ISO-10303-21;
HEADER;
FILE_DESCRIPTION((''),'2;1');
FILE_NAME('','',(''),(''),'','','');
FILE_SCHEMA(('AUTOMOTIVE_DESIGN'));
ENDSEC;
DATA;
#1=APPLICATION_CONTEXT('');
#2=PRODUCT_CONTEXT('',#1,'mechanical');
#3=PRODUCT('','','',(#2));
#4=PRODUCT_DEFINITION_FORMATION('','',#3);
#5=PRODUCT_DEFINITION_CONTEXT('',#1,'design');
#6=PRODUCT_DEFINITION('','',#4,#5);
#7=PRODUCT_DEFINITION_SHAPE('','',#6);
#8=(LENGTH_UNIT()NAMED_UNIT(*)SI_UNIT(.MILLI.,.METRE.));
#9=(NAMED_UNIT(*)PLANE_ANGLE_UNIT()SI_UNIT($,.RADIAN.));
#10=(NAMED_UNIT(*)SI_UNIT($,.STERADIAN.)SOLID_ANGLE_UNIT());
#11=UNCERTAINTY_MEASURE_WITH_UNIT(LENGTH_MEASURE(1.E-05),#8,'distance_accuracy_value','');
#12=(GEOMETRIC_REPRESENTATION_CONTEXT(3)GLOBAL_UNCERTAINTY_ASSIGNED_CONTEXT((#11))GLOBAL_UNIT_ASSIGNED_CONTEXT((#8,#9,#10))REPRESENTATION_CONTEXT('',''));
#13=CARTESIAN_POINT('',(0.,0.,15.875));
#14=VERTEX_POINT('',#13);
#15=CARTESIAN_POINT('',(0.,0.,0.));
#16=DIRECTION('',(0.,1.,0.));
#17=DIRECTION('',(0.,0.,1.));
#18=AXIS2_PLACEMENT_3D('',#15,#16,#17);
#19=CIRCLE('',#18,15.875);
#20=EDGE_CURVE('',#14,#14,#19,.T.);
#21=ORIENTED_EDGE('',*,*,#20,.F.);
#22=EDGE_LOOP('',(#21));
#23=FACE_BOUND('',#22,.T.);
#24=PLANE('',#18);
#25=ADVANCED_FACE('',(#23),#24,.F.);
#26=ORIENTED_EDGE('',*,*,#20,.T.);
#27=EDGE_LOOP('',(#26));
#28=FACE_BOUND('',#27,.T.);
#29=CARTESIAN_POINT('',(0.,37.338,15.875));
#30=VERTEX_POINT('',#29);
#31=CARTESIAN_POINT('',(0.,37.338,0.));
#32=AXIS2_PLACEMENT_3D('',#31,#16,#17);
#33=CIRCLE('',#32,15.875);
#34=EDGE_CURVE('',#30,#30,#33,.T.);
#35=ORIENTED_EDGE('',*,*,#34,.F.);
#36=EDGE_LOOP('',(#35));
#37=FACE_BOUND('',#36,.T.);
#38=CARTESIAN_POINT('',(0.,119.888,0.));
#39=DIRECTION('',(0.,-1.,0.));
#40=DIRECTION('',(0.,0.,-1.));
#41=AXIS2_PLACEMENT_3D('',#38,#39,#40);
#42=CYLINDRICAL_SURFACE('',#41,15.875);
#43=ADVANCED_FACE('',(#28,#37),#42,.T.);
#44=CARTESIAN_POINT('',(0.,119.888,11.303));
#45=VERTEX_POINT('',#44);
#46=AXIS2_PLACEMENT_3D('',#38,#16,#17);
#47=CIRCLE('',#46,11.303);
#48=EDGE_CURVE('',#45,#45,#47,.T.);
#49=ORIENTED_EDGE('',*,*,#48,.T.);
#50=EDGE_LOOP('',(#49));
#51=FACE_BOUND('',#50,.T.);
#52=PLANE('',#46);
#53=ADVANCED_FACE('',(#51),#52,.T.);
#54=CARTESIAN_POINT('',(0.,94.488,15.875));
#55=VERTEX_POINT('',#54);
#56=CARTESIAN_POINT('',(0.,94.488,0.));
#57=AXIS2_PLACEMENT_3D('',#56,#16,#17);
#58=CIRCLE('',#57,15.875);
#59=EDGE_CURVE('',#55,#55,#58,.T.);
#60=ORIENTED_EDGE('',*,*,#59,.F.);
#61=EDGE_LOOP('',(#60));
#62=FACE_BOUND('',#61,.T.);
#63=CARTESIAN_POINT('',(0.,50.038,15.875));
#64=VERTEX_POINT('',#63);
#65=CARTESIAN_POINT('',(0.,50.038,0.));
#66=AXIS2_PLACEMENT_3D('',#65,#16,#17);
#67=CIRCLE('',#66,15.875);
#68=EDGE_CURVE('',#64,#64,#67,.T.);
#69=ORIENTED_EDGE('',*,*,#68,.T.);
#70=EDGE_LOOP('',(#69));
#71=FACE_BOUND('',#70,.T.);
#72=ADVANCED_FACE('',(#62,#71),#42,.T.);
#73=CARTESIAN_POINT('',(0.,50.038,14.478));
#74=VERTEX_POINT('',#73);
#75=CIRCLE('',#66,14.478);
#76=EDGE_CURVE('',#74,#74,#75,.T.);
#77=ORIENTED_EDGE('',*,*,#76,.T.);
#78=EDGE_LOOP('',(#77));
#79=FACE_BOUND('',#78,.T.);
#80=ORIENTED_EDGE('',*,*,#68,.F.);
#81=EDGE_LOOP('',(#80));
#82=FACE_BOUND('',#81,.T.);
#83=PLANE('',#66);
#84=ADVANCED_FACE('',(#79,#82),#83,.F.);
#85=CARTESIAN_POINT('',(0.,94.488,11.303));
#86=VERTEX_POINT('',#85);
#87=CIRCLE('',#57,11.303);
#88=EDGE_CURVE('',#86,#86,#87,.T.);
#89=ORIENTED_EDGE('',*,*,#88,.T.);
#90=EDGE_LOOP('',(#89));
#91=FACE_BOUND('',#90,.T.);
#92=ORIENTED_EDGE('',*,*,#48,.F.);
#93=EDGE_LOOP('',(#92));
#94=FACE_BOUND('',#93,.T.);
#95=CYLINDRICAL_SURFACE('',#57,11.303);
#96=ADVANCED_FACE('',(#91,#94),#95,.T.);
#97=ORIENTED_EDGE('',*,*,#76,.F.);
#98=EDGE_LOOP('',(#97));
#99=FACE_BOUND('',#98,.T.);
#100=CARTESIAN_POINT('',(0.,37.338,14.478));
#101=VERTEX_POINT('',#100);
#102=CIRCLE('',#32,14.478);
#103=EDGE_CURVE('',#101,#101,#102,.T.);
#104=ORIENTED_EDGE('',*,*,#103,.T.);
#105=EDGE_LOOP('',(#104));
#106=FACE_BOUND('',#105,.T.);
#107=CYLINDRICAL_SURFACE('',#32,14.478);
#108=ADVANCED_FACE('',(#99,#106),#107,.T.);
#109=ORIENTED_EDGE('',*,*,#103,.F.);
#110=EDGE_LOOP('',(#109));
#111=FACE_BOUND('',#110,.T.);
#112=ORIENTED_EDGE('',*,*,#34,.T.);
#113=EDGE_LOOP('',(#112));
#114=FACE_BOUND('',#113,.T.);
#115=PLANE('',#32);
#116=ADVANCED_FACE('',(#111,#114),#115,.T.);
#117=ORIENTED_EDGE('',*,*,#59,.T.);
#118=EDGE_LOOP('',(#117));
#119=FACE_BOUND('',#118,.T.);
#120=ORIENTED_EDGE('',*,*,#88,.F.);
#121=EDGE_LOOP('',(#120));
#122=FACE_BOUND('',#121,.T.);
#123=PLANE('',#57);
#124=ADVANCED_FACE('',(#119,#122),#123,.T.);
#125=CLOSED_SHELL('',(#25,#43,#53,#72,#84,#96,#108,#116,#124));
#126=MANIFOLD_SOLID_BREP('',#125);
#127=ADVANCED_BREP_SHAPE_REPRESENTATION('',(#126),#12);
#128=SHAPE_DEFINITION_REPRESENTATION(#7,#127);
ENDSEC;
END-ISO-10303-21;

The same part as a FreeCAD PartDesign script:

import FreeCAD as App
import Part
import Sketcher
from FreeCAD import Vector
Q = App.Units.Quantity

doc = App.newDocument("Part")
body = doc.addObject("PartDesign::Body", "Body")

sketch1 = body.newObject("Sketcher::SketchObject", "Sketch")
sketch1.AttachmentSupport = (doc.getObject("XZ_Plane"), [""])
sketch1.MapMode = "FlatFace"
sketch1.addGeometry(Part.Circle(Vector(0, 0, 0), Vector(0, 0, 1), 16), False)
sketch1.addConstraint(Sketcher.Constraint("Coincident", 0, 3, -1, 1))
sketch1.addConstraint(Sketcher.Constraint("Diameter", 0, Q("1.25 in")))
pad1 = body.newObject("PartDesign::Pad", "Pad")
pad1.Profile = sketch1
pad1.Length = Q("4.72 in")
pad1.Reversed = True

sketch2 = body.newObject("Sketcher::SketchObject", "Sketch001")
sketch2.AttachmentSupport = (doc.getObject("XZ_Plane"), [""])
sketch2.MapMode = "FlatFace"
sketch2.AttachmentOffset = App.Placement(Vector(0, 0, -4.72 * 25.4), App.Rotation())
sketch2.addGeometry(Part.Circle(Vector(0, 0, 0), Vector(0, 0, 1), 16), False)
sketch2.addGeometry(Part.Circle(Vector(0, 0, 0), Vector(0, 0, 1), 11), False)
sketch2.addConstraint(Sketcher.Constraint("Coincident", 0, 3, -1, 1))
sketch2.addConstraint(Sketcher.Constraint("Coincident", 1, 3, -1, 1))
sketch2.addConstraint(Sketcher.Constraint("Diameter", 0, Q("1.25 in")))
sketch2.addConstraint(Sketcher.Constraint("Diameter", 1, Q("0.89 in")))
pocket1 = body.newObject("PartDesign::Pocket", "Pocket")
pocket1.Profile = sketch2
pocket1.Length = Q("1 in")
pocket1.Reversed = True

sketch3 = body.newObject("Sketcher::SketchObject", "Sketch002")
sketch3.AttachmentSupport = (doc.getObject("XZ_Plane"), [""])
sketch3.MapMode = "FlatFace"
sketch3.AttachmentOffset = App.Placement(Vector(0, 0, -1.97 * 25.4), App.Rotation())
sketch3.addGeometry(Part.Circle(Vector(0, 0, 0), Vector(0, 0, 1), 16), False)
sketch3.addGeometry(Part.Circle(Vector(0, 0, 0), Vector(0, 0, 1), 14), False)
sketch3.addConstraint(Sketcher.Constraint("Coincident", 0, 3, -1, 1))
sketch3.addConstraint(Sketcher.Constraint("Coincident", 1, 3, -1, 1))
sketch3.addConstraint(Sketcher.Constraint("Diameter", 0, Q("1.25 in")))
sketch3.addConstraint(Sketcher.Constraint("Diameter", 1, Q("1.14 in")))
pocket2 = body.newObject("PartDesign::Pocket", "Pocket001")
pocket2.Profile = sketch3
pocket2.Length = Q("0.5 in")
pocket2.Reversed = True

doc.recompute()
